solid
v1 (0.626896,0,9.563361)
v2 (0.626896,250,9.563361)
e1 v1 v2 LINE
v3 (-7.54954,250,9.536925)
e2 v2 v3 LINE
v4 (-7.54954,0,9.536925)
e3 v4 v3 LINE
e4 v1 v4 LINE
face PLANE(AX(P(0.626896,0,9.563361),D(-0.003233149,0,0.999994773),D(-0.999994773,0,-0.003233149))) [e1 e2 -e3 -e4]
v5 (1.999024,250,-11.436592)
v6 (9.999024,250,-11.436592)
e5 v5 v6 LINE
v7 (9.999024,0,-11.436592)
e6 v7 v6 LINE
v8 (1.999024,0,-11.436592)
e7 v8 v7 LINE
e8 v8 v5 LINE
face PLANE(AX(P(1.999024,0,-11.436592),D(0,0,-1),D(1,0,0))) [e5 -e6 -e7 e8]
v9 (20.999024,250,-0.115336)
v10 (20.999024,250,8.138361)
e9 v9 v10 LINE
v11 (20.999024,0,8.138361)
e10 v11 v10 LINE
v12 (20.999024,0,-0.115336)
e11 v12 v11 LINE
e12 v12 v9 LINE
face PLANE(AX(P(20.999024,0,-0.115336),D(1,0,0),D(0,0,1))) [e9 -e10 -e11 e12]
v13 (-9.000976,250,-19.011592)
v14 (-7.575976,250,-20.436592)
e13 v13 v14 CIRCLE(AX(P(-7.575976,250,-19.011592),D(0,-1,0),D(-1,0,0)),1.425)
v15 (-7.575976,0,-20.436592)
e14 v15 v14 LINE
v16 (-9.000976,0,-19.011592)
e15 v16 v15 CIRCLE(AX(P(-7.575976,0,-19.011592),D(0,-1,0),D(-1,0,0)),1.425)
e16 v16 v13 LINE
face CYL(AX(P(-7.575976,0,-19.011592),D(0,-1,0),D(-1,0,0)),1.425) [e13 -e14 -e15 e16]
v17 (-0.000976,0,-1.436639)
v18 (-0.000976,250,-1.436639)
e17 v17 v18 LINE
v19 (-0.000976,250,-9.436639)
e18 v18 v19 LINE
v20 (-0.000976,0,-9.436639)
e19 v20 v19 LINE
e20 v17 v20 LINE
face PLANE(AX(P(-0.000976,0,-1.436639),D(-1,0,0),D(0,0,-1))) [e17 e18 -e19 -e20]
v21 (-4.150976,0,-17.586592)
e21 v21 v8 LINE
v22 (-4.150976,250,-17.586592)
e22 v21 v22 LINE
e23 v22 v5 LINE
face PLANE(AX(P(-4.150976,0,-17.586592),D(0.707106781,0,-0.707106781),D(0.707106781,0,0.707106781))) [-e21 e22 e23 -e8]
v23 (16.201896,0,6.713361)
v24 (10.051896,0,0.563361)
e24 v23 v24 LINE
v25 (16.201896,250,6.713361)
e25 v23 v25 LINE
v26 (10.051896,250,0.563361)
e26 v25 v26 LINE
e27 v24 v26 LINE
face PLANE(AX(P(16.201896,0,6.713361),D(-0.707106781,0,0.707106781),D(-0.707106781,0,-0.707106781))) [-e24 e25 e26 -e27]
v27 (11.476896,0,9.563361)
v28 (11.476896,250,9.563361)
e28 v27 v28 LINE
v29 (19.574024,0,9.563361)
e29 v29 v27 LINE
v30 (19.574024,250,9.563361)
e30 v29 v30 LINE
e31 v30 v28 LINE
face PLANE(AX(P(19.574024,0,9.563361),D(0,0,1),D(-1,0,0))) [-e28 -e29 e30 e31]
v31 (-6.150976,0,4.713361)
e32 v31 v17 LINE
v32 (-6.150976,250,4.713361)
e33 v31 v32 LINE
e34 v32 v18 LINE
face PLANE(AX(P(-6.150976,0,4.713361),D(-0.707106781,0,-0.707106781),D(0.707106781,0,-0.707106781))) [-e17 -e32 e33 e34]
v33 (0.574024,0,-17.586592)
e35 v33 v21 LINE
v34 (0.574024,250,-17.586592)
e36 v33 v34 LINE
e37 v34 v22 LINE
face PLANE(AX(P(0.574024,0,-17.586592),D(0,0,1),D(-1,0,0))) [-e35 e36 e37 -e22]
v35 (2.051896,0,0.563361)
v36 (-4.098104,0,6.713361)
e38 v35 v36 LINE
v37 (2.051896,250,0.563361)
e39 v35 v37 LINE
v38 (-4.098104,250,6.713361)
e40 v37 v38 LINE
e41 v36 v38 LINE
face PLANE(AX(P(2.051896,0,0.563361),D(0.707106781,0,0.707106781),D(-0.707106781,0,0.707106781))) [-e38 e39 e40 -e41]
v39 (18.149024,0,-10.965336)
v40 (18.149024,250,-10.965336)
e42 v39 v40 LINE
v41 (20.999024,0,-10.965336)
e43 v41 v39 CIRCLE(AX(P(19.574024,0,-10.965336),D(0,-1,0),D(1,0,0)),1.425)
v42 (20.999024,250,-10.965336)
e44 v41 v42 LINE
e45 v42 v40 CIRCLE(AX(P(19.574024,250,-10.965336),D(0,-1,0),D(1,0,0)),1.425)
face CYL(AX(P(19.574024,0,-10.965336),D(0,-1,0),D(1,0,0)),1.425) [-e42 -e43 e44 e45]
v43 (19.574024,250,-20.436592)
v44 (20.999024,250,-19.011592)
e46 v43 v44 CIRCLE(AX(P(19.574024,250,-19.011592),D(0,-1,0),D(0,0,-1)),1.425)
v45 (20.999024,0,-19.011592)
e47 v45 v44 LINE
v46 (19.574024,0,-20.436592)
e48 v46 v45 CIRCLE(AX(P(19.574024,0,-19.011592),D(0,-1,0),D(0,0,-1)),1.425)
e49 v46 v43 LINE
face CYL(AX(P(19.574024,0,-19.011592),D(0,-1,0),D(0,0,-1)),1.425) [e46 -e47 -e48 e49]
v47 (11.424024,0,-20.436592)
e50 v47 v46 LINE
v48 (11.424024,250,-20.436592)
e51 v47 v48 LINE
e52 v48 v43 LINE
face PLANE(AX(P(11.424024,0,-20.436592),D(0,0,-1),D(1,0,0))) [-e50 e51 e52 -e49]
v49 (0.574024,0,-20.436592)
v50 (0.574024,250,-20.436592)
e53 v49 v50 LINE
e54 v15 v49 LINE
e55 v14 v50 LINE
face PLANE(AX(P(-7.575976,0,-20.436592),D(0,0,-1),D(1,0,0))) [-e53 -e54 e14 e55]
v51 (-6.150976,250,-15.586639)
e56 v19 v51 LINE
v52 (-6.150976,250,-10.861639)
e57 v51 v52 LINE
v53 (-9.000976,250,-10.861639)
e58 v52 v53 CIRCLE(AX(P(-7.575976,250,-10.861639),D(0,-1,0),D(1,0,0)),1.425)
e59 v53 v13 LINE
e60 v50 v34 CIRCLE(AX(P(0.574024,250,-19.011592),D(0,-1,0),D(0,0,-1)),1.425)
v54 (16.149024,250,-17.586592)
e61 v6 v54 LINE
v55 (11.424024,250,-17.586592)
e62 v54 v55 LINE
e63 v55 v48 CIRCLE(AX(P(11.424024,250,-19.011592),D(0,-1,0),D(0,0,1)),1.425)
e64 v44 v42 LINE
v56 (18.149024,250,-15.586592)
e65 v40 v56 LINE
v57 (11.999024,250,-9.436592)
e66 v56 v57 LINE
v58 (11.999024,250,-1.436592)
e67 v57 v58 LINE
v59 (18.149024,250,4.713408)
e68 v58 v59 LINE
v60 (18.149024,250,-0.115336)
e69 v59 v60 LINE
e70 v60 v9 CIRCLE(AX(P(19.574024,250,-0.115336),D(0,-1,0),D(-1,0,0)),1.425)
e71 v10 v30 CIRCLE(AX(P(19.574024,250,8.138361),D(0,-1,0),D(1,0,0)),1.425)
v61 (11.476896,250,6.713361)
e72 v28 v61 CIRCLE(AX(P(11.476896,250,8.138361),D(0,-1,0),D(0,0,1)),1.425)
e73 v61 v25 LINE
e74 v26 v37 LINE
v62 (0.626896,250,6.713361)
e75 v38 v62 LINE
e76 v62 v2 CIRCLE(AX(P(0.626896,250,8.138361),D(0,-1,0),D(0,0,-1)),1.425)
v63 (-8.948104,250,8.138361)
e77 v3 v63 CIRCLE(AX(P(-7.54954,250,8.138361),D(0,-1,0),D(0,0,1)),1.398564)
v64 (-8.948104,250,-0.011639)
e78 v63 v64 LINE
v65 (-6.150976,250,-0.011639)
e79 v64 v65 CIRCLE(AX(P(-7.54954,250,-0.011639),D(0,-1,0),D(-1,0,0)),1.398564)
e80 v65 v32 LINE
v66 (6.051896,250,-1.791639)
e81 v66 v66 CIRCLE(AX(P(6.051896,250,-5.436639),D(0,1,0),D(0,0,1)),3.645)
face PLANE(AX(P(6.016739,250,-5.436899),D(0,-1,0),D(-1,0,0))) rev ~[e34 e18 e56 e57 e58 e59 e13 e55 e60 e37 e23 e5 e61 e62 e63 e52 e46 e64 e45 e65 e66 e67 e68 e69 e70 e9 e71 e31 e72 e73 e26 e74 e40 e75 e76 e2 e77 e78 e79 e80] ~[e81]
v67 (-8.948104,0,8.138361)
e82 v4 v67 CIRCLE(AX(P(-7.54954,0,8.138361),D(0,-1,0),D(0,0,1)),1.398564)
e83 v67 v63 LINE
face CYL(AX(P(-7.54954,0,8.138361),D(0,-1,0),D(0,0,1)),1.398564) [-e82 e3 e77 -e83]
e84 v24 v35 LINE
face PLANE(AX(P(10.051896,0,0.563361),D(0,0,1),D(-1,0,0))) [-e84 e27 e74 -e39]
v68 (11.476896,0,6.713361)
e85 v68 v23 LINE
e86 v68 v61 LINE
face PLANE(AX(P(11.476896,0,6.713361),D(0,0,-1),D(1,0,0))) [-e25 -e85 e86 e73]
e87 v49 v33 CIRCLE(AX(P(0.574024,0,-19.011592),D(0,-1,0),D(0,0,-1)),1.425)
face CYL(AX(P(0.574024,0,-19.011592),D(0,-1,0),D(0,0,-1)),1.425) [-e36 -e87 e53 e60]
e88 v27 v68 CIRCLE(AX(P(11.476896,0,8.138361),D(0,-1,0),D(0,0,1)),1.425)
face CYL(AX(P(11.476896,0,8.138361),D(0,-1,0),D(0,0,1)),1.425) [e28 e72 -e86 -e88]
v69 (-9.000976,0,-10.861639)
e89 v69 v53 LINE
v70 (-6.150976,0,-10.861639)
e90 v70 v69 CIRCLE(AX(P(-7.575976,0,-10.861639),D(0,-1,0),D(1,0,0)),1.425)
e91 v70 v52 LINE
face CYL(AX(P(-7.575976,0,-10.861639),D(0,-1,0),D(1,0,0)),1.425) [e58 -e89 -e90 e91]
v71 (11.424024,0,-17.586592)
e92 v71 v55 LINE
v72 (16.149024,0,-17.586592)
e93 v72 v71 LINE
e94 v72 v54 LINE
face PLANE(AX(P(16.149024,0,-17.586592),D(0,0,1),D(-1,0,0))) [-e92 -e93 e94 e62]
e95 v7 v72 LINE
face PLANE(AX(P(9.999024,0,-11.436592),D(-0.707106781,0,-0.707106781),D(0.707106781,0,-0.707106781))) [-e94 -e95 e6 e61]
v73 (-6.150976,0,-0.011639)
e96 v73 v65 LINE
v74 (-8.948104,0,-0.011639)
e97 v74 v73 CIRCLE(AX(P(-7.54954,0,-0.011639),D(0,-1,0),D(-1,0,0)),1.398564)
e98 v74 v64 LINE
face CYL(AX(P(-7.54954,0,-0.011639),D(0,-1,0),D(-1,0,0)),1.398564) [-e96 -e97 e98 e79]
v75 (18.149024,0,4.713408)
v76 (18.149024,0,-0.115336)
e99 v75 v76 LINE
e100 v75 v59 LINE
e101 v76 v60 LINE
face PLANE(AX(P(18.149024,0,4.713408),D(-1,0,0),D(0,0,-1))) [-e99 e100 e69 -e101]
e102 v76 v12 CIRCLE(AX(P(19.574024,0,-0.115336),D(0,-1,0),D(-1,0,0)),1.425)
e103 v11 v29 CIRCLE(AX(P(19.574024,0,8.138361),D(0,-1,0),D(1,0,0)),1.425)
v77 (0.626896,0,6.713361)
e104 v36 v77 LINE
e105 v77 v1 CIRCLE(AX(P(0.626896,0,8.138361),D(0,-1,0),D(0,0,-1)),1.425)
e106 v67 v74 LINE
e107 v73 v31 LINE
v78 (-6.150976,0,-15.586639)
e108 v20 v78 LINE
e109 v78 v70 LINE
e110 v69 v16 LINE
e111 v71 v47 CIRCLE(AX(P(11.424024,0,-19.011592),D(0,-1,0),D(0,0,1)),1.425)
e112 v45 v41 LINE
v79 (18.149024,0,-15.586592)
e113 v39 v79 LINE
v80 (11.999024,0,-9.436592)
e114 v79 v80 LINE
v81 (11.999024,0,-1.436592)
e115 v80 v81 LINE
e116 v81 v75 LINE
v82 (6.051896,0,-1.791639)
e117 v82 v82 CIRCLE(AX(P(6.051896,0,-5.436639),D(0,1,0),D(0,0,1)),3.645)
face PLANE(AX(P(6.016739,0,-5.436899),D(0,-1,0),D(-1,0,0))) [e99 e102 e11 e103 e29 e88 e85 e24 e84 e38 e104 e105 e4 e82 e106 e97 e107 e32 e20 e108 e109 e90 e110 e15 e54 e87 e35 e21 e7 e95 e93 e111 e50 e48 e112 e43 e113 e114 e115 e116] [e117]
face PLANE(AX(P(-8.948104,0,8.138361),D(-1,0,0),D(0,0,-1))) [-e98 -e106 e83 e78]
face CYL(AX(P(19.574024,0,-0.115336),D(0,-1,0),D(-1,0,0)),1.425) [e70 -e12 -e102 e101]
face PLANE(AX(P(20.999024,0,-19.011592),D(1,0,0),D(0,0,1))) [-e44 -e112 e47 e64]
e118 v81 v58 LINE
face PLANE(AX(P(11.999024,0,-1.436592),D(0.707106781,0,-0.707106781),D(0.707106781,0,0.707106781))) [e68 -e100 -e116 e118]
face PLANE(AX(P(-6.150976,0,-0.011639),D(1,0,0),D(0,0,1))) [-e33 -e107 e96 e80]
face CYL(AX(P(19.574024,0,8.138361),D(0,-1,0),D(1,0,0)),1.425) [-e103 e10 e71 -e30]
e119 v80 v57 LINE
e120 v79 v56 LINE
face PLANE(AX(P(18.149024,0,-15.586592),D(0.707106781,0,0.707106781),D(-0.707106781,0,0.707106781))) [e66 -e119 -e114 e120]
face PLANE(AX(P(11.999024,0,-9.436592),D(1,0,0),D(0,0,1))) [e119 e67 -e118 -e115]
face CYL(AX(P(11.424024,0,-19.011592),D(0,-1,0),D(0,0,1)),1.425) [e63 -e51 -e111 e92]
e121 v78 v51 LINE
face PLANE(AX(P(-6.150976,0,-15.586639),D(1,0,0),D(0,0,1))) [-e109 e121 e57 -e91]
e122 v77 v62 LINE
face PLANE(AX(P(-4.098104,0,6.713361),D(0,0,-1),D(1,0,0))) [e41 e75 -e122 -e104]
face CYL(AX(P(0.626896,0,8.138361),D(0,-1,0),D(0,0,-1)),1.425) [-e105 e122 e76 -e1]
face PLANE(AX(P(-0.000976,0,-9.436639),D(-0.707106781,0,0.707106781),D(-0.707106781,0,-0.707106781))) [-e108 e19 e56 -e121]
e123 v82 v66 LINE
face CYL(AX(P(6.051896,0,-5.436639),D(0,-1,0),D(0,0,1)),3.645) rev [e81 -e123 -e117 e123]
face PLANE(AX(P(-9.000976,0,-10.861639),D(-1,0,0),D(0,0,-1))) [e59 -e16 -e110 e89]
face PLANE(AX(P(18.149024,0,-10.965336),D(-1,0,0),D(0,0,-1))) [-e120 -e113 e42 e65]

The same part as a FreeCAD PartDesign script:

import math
import FreeCAD as App
import Part
import Sketcher
Q = App.Units.Quantity

doc = App.newDocument("Part")
body = doc.addObject("PartDesign::Body", "Body")

# Sketch on XZ plane
sketch1 = body.newObject("Sketcher::SketchObject", "Sketch")
sketch1.AttachmentSupport = (doc.getObject("XZ_Plane"), [""])
sketch1.MapMode = "FlatFace"
sketch1.addGeometry(Part.LineSegment(App.Vector(16.2, 6.7, 0), App.Vector(11.5, 6.7, 0)), False)
sketch1.addGeometry(Part.ArcOfCircle(Part.Circle(App.Vector(11.5, 8.1, 0), App.Vector(0, 0, 1), 1.4), math.radians(90), math.radians(270)), False)
sketch1.addGeometry(Part.LineSegment(App.Vector(11.5, 9.6, 0), App.Vector(19.6, 9.6, 0)), False)
sketch1.addGeometry(Part.ArcOfCircle(Part.Circle(App.Vector(19.6, 8.1, 0), App.Vector(0, 0, 1), 1.4), math.radians(0), math.radians(90)), False)
sketch1.addGeometry(Part.LineSegment(App.Vector(21, 8.1, 0), App.Vector(21, -0.1, 0)), False)
sketch1.addGeometry(Part.ArcOfCircle(Part.Circle(App.Vector(19.6, -0.1, 0), App.Vector(0, 0, 1), 1.4), math.radians(180), math.radians(360)), False)
sketch1.addGeometry(Part.LineSegment(App.Vector(18.1, -0.1, 0), App.Vector(18.1, 4.7, 0)), False)
sketch1.addGeometry(Part.LineSegment(App.Vector(18.1, 4.7, 0), App.Vector(12, -1.4, 0)), False)
sketch1.addGeometry(Part.LineSegment(App.Vector(12, -1.4, 0), App.Vector(12, -9.4, 0)), False)
sketch1.addGeometry(Part.LineSegment(App.Vector(12, -9.4, 0), App.Vector(18.1, -15.6, 0)), False)
sketch1.addGeometry(Part.LineSegment(App.Vector(18.1, -15.6, 0), App.Vector(18.1, -11, 0)), False)
sketch1.addGeometry(Part.ArcOfCircle(Part.Circle(App.Vector(19.6, -11, 0), App.Vector(0, 0, 1), 1.4), math.radians(0), math.radians(180)), False)
sketch1.addGeometry(Part.LineSegment(App.Vector(21, -11, 0), App.Vector(21, -19, 0)), False)
sketch1.addGeometry(Part.ArcOfCircle(Part.Circle(App.Vector(19.6, -19, 0), App.Vector(0, 0, 1), 1.4), math.radians(-90), math.radians(0)), False)
sketch1.addGeometry(Part.LineSegment(App.Vector(19.6, -20.4, 0), App.Vector(11.4, -20.4, 0)), False)
sketch1.addGeometry(Part.ArcOfCircle(Part.Circle(App.Vector(11.4, -19, 0), App.Vector(0, 0, 1), 1.4), math.radians(90), math.radians(270)), False)
sketch1.addGeometry(Part.LineSegment(App.Vector(11.4, -17.6, 0), App.Vector(16.1, -17.6, 0)), False)
sketch1.addGeometry(Part.LineSegment(App.Vector(16.1, -17.6, 0), App.Vector(10, -11.4, 0)), False)
sketch1.addGeometry(Part.LineSegment(App.Vector(10, -11.4, 0), App.Vector(2, -11.4, 0)), False)
sketch1.addGeometry(Part.LineSegment(App.Vector(2, -11.4, 0), App.Vector(-4.2, -17.6, 0)), False)
sketch1.addGeometry(Part.LineSegment(App.Vector(-4.2, -17.6, 0), App.Vector(0.6, -17.6, 0)), False)
sketch1.addGeometry(Part.ArcOfCircle(Part.Circle(App.Vector(0.6, -19, 0), App.Vector(0, 0, 1), 1.4), math.radians(-90), math.radians(90)), False)
sketch1.addGeometry(Part.LineSegment(App.Vector(0.6, -20.4, 0), App.Vector(-7.6, -20.4, 0)), False)
sketch1.addGeometry(Part.ArcOfCircle(Part.Circle(App.Vector(-7.6, -19, 0), App.Vector(0, 0, 1), 1.4), math.radians(-180), math.radians(-90)), False)
sketch1.addGeometry(Part.LineSegment(App.Vector(-9, -19, 0), App.Vector(-9, -10.9, 0)), False)
sketch1.addGeometry(Part.ArcOfCircle(Part.Circle(App.Vector(-7.6, -10.9, 0), App.Vector(0, 0, 1), 1.4), math.radians(0), math.radians(180)), False)
sketch1.addGeometry(Part.LineSegment(App.Vector(-6.2, -10.9, 0), App.Vector(-6.2, -15.6, 0)), False)
sketch1.addGeometry(Part.LineSegment(App.Vector(-6.2, -15.6, 0), App.Vector(0, -9.4, 0)), False)
sketch1.addGeometry(Part.LineSegment(App.Vector(0, -9.4, 0), App.Vector(0, -1.4, 0)), False)
sketch1.addGeometry(Part.LineSegment(App.Vector(0, -1.4, 0), App.Vector(-6.2, 4.7, 0)), False)
sketch1.addGeometry(Part.LineSegment(App.Vector(-6.2, 4.7, 0), App.Vector(-6.2, 0, 0)), False)
sketch1.addGeometry(Part.ArcOfCircle(Part.Circle(App.Vector(-7.5, 0, 0), App.Vector(0, 0, 1), 1.4), math.radians(180), math.radians(360)), False)
sketch1.addGeometry(Part.LineSegment(App.Vector(-8.9, 0, 0), App.Vector(-8.9, 8.1, 0)), False)
sketch1.addGeometry(Part.ArcOfCircle(Part.Circle(App.Vector(-7.5, 8.1, 0), App.Vector(0, 0, 1), 1.4), math.radians(90), math.radians(180)), False)
sketch1.addGeometry(Part.LineSegment(App.Vector(-7.5, 9.5, 0), App.Vector(0.6, 9.6, 0)), False)
sketch1.addGeometry(Part.ArcOfCircle(Part.Circle(App.Vector(0.6, 8.1, 0), App.Vector(0, 0, 1), 1.4), math.radians(-90), math.radians(90)), False)
sketch1.addGeometry(Part.LineSegment(App.Vector(0.6, 6.7, 0), App.Vector(-4.1, 6.7, 0)), False)
sketch1.addGeometry(Part.LineSegment(App.Vector(-4.1, 6.7, 0), App.Vector(2.1, 0.6, 0)), False)
sketch1.addGeometry(Part.LineSegment(App.Vector(2.1, 0.6, 0), App.Vector(10.1, 0.6, 0)), False)
sketch1.addGeometry(Part.LineSegment(App.Vector(10.1, 0.6, 0), App.Vector(16.2, 6.7, 0)), False)
sketch1.addGeometry(Part.Circle(App.Vector(6.1, -5.4, 0), App.Vector(0, 0, 1), 3.6), False)
sketch1.addConstraint(Sketcher.Constraint("Tangent", 0, 2, 1, 2))
sketch1.addConstraint(Sketcher.Constraint("Tangent", 1, 1, 2, 1))
sketch1.addConstraint(Sketcher.Constraint("Tangent", 2, 2, 3, 2))
sketch1.addConstraint(Sketcher.Constraint("Tangent", 3, 1, 4, 1))
sketch1.addConstraint(Sketcher.Constraint("Tangent", 4, 2, 5, 2))
sketch1.addConstraint(Sketcher.Constraint("Tangent", 5, 1, 6, 1))
sketch1.addConstraint(Sketcher.Constraint("Coincident", 6, 2, 7, 1))
sketch1.addConstraint(Sketcher.Constraint("Coincident", 7, 2, 8, 1))
sketch1.addConstraint(Sketcher.Constraint("Coincident", 8, 2, 9, 1))
sketch1.addConstraint(Sketcher.Constraint("Coincident", 9, 2, 10, 1))
sketch1.addConstraint(Sketcher.Constraint("Tangent", 10, 2, 11, 2))
sketch1.addConstraint(Sketcher.Constraint("Tangent", 11, 1, 12, 1))
sketch1.addConstraint(Sketcher.Constraint("Tangent", 12, 2, 13, 2))
sketch1.addConstraint(Sketcher.Constraint("Tangent", 13, 1, 14, 1))
sketch1.addConstraint(Sketcher.Constraint("Tangent", 14, 2, 15, 2))
sketch1.addConstraint(Sketcher.Constraint("Tangent", 15, 1, 16, 1))
sketch1.addConstraint(Sketcher.Constraint("Coincident", 16, 2, 17, 1))
sketch1.addConstraint(Sketcher.Constraint("Coincident", 17, 2, 18, 1))
sketch1.addConstraint(Sketcher.Constraint("Coincident", 18, 2, 19, 1))
sketch1.addConstraint(Sketcher.Constraint("Coincident", 19, 2, 20, 1))
sketch1.addConstraint(Sketcher.Constraint("Tangent", 20, 2, 21, 2))
sketch1.addConstraint(Sketcher.Constraint("Tangent", 21, 1, 22, 1))
sketch1.addConstraint(Sketcher.Constraint("Tangent", 22, 2, 23, 2))
sketch1.addConstraint(Sketcher.Constraint("Tangent", 23, 1, 24, 1))
sketch1.addConstraint(Sketcher.Constraint("Tangent", 24, 2, 25, 2))
sketch1.addConstraint(Sketcher.Constraint("Tangent", 25, 1, 26, 1))
sketch1.addConstraint(Sketcher.Constraint("Coincident", 26, 2, 27, 1))
sketch1.addConstraint(Sketcher.Constraint("Coincident", 27, 2, 28, 1))
sketch1.addConstraint(Sketcher.Constraint("Coincident", 28, 2, 29, 1))
sketch1.addConstraint(Sketcher.Constraint("Coincident", 29, 2, 30, 1))
sketch1.addConstraint(Sketcher.Constraint("Tangent", 30, 2, 31, 2))
sketch1.addConstraint(Sketcher.Constraint("Tangent", 31, 1, 32, 1))
sketch1.addConstraint(Sketcher.Constraint("Tangent", 32, 2, 33, 2))
sketch1.addConstraint(Sketcher.Constraint("Coincident", 33, 1, 34, 1))
sketch1.addConstraint(Sketcher.Constraint("Coincident", 34, 2, 35, 2))
sketch1.addConstraint(Sketcher.Constraint("Tangent", 35, 1, 36, 1))
sketch1.addConstraint(Sketcher.Constraint("Coincident", 36, 2, 37, 1))
sketch1.addConstraint(Sketcher.Constraint("Coincident", 37, 2, 38, 1))
sketch1.addConstraint(Sketcher.Constraint("Coincident", 38, 2, 39, 1))
sketch1.addConstraint(Sketcher.Constraint("Coincident", 39, 2, 0, 1))
sketch1.addConstraint(Sketcher.Constraint("Horizontal", 0))
sketch1.addConstraint(Sketcher.Constraint("Horizontal", 2))
sketch1.addConstraint(Sketcher.Constraint("Vertical", 4))
sketch1.addConstraint(Sketcher.Constraint("Vertical", 6))
sketch1.addConstraint(Sketcher.Constraint("Vertical", 8))
sketch1.addConstraint(Sketcher.Constraint("Vertical", 10))
sketch1.addConstraint(Sketcher.Constraint("Vertical", 12))
sketch1.addConstraint(Sketcher.Constraint("Horizontal", 14))
sketch1.addConstraint(Sketcher.Constraint("Horizontal", 16))
sketch1.addConstraint(Sketcher.Constraint("Horizontal", 18))
sketch1.addConstraint(Sketcher.Constraint("Horizontal", 20))
sketch1.addConstraint(Sketcher.Constraint("Horizontal", 22))
sketch1.addConstraint(Sketcher.Constraint("Vertical", 24))
sketch1.addConstraint(Sketcher.Constraint("Vertical", 26))
sketch1.addConstraint(Sketcher.Constraint("Vertical", 28))
sketch1.addConstraint(Sketcher.Constraint("Vertical", 30))
sketch1.addConstraint(Sketcher.Constraint("Vertical", 32))
sketch1.addConstraint(Sketcher.Constraint("Horizontal", 36))
sketch1.addConstraint(Sketcher.Constraint("Horizontal", 38))
sketch1.addConstraint(Sketcher.Constraint("Equal", 1, 3))
sketch1.addConstraint(Sketcher.Constraint("Equal", 3, 5))
sketch1.addConstraint(Sketcher.Constraint("Equal", 5, 11))
sketch1.addConstraint(Sketcher.Constraint("Equal", 11, 13))
sketch1.addConstraint(Sketcher.Constraint("Equal", 13, 15))
sketch1.addConstraint(Sketcher.Constraint("Equal", 15, 21))
sketch1.addConstraint(Sketcher.Constraint("Equal", 21, 23))
sketch1.addConstraint(Sketcher.Constraint("Equal", 23, 25))
sketch1.addConstraint(Sketcher.Constraint("Equal", 31, 33))
sketch1.addConstraint(Sketcher.Constraint("Equal", 25, 35))
sketch1.addConstraint(Sketcher.Constraint("Perpendicular", 7, 9))
sketch1.addConstraint(Sketcher.Constraint("Parallel", 9, 17))
sketch1.addConstraint(Sketcher.Constraint("Perpendicular", 17, 19))
sketch1.addConstraint(Sketcher.Constraint("Parallel", 19, 27))
sketch1.addConstraint(Sketcher.Constraint("Perpendicular", 27, 29))
sketch1.addConstraint(Sketcher.Constraint("Parallel", 29, 37))
sketch1.addConstraint(Sketcher.Constraint("Perpendicular", 37, 39))
sketch1.addConstraint(Sketcher.Constraint("Horizontal", 15, 3, 21, 3))
sketch1.addConstraint(Sketcher.Constraint("Horizontal", 3, 3, 33, 3))
sketch1.addConstraint(Sketcher.Constraint("Horizontal", 33, 3, 35, 3))
sketch1.addConstraint(Sketcher.Constraint("Vertical", 5, 3, 11, 3))
sketch1.addConstraint(Sketcher.Constraint("Vertical", 26, 2, 29, 2))
sketch1.addConstraint(Sketcher.Constraint("Vertical", 31, 3, 33, 1))
sketch1.addConstraint(Sketcher.Constraint("Vertical", 35, 3, 34, 2))
sketch1.addConstraint(Sketcher.Constraint("Equal", 0, 16))
sketch1.addConstraint(Sketcher.Constraint("Equal", 16, 20))
sketch1.addConstraint(Sketcher.Constraint("Equal", 14, 22))
sketch1.addConstraint(Sketcher.Constraint("Equal", 20, 36))
sketch1.addConstraint(Sketcher.Constraint("Equal", 18, 38))
sketch1.addConstraint(Sketcher.Constraint("Equal", 38, 8))
sketch1.addConstraint(Sketcher.Constraint("Equal", 36, 26))
sketch1.addConstraint(Sketcher.Constraint("Equal", 8, 28))
sketch1.addConstraint(Sketcher.Constraint("Equal", 26, 30))
sketch1.addConstraint(Sketcher.Constraint("Equal", 22, 32))
sketch1.addConstraint(Sketcher.Constraint("Equal", 7, 9))
sketch1.addConstraint(Sketcher.Constraint("Equal", 9, 17))
sketch1.addConstraint(Sketcher.Constraint("Equal", 19, 27))
sketch1.addConstraint(Sketcher.Constraint("Equal", 29, 37))
sketch1.addConstraint(Sketcher.Constraint("Diameter", 40, Q("7.29 mm")))
sketch1.addConstraint(Sketcher.Constraint("DistanceX", 18, 2, 18, 1, Q("8 mm")))
sketch1.addConstraint(Sketcher.Constraint("Radius", 1, Q("1.425 mm")))
sketch1.addConstraint(Sketcher.Constraint("DistanceX", 21, 3, 13, 3, Q("19 mm")))
sketch1.addConstraint(Sketcher.Constraint("DistanceX", 8, 2, 11, 1, Q("9 mm")))
sketch1.addConstraint(Sketcher.Constraint("DistanceY", 15, 1, 9, 2, Q("2 mm")))
sketch1.addConstraint(Sketcher.Constraint("DistanceX", 16, 2, 9, 2, Q("2 mm")))
sketch1.addConstraint(Sketcher.Constraint("DistanceY", 27, 2, 40, 3, Q("4 mm")))
sketch1.addConstraint(Sketcher.Constraint("DistanceX", 37, 2, 40, 3, Q("4 mm")))
sketch1.addConstraint(Sketcher.Constraint("DistanceY", 11, 3, 5, 3, Q("10.85 mm")))
sketch1.addConstraint(Sketcher.Constraint("Radius", 31, Q("1.398564 mm")))
sketch1.addConstraint(Sketcher.Constraint("DistanceX", 32, 2, 34, 2, Q("9.575 mm")))
sketch1.addConstraint(Sketcher.Constraint("DistanceY", 4, 2, 4, 1, Q("8.253697 mm")))
sketch1.addConstraint(Sketcher.Constraint("DistanceY", 6, 1, 6, 2, Q("4.828744 mm")))
sketch1.addConstraint(Sketcher.Constraint("DistanceY", -1, 1, 1, 3, Q("8.138361 mm")))
sketch1.addConstraint(Sketcher.Constraint("DistanceX", 31, 3, -1, 1, Q("7.54954 mm")))
pad1 = body.newObject("PartDesign::Pad", "Pad")
pad1.Profile = sketch1
pad1.Length = 250
pad1.Reversed = True

doc.recompute()
